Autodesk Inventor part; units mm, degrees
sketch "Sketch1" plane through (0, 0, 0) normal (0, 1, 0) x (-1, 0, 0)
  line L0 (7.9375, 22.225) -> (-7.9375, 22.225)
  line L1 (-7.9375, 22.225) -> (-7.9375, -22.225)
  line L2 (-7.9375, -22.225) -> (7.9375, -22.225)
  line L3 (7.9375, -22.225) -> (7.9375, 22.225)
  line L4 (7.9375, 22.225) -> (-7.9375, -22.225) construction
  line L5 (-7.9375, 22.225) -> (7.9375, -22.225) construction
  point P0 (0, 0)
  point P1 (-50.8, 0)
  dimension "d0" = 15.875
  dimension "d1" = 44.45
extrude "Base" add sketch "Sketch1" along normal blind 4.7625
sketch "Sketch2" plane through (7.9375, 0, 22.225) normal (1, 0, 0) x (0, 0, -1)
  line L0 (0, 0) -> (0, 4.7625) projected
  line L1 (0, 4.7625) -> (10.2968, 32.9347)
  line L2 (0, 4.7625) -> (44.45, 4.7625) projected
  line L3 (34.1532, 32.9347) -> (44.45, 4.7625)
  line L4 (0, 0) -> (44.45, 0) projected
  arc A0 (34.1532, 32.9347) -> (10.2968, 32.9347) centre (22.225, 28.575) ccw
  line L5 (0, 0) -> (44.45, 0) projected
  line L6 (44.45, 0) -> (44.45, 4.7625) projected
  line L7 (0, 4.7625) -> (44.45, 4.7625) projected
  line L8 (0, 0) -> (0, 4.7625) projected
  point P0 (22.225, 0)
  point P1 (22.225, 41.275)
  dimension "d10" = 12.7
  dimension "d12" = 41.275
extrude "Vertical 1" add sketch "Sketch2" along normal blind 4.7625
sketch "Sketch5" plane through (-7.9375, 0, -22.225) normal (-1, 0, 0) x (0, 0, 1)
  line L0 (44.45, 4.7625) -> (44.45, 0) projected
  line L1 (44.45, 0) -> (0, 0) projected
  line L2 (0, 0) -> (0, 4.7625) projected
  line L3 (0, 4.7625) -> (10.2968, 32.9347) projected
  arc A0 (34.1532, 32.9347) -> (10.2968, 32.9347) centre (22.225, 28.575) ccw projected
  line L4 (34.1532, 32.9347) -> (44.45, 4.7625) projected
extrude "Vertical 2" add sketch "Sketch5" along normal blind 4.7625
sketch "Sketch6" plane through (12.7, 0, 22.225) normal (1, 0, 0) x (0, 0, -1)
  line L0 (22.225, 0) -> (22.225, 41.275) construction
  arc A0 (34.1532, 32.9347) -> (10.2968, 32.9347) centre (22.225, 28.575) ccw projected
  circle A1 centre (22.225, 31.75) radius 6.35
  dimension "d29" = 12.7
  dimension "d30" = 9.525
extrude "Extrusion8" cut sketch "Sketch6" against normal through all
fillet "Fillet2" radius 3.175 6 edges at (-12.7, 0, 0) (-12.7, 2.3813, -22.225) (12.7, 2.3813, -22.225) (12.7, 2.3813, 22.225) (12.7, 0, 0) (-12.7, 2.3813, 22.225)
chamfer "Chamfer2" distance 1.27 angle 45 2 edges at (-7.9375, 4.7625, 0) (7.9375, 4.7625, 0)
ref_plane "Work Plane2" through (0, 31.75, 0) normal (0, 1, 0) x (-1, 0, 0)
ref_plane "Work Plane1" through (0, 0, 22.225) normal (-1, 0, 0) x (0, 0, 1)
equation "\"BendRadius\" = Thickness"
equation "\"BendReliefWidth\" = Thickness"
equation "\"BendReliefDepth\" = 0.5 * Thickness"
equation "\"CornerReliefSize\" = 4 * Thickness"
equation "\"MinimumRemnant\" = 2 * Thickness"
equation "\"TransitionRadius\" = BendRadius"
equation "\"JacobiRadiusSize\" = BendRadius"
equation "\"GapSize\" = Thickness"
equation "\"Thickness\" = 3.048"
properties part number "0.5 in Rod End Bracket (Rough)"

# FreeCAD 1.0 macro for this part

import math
import FreeCAD as App
import Part
import Sketcher

V = App.Vector
Q = App.Units.Quantity


def edges_at(feature, points):
    """Names of the edges that pass closest to the given points."""
    edges = feature.Shape.Edges
    near = lambda p: min(range(len(edges)), key=lambda i: edges[i].distToShape(Part.Vertex(*p))[0])
    return sorted({f"Edge{near(p) + 1}" for p in points})

doc = App.newDocument("Part")
body = doc.addObject("PartDesign::Body", "Body")

sketch1 = doc.addObject("Sketcher::SketchObject", "Sketch")
body.addObject(sketch1)
sketch1.AttachmentSupport = (doc.XZ_Plane, [""])
sketch1.MapMode = "FlatFace"
sketch1.addGeometry([
    Part.LineSegment(V(-7.9375, -22.225, 0), V(-7.9375, 22.225, 0)),
    Part.LineSegment(V(-7.9375, 22.225, 0), V(7.9375, 22.225, 0)),
    Part.LineSegment(V(7.9375, 22.225, 0), V(7.9375, -22.225, 0)),
    Part.LineSegment(V(7.9375, -22.225, 0), V(-7.9375, -22.225, 0)),
], False)
sketch1.addConstraint([
    Sketcher.Constraint("Coincident", 0, 2, 1, 1),
    Sketcher.Constraint("Coincident", 1, 2, 2, 1),
    Sketcher.Constraint("Coincident", 2, 2, 3, 1),
    Sketcher.Constraint("Coincident", 3, 2, 0, 1),
    Sketcher.Constraint("Vertical", 0),
    Sketcher.Constraint("Horizontal", 1),
    Sketcher.Constraint("Vertical", 2),
    Sketcher.Constraint("Horizontal", 3),
    Sketcher.Constraint("Symmetric", 0, 2, 2, 2, -1, 1),
    Sketcher.Constraint("DistanceY", 0, 1, 0, 2, Q("1.75 in")),
    Sketcher.Constraint("DistanceX", 1, 1, 1, 2, Q("0.625 in")),
])
pad1 = doc.addObject("PartDesign::Pad", "Pad")
body.addObject(pad1)
pad1.Profile = sketch1
pad1.Length = Q("0.1875 in")
pad1.Reversed = True

sketch2 = doc.addObject("Sketcher::SketchObject", "Sketch001")
body.addObject(sketch2)
sketch2.AttachmentSupport = (doc.YZ_Plane, [""])
sketch2.MapMode = "FlatFace"
sketch2.AttachmentOffset = App.Placement(V(0, 0, 0.3125 * 25.4), App.Rotation())
sketch2.addGeometry([
    Part.LineSegment(V(4.7625, 22.225, 0), V(0, 22.225, 0)),
    Part.LineSegment(V(0, 22.225, 0), V(0, -22.225, 0)),
    Part.LineSegment(V(0, -22.225, 0), V(4.7625, -22.225, 0)),
    Part.LineSegment(V(4.7625, -22.225, 0), V(32.9347, -11.9282, 0)),
    Part.ArcOfCircle(Part.Circle(V(28.575, 0, 0), V(0, 0, 1), 12.699958), math.radians(-69.922884), math.radians(69.922884)),
    Part.LineSegment(V(32.9347, 11.9282, 0), V(4.7625, 22.225, 0)),
], False)
sketch2.addConstraint([
    Sketcher.Constraint("Coincident", 0, 2, 1, 1),
    Sketcher.Constraint("Coincident", 1, 2, 2, 1),
    Sketcher.Constraint("Coincident", 2, 2, 3, 1),
    Sketcher.Constraint("Tangent", 3, 2, 4, 1),
    Sketcher.Constraint("Tangent", 4, 2, 5, 1),
    Sketcher.Constraint("Coincident", 5, 2, 0, 1),
    Sketcher.Constraint("Horizontal", 0),
    Sketcher.Constraint("Vertical", 1),
    Sketcher.Constraint("Horizontal", 2),
    Sketcher.Constraint("Symmetric", 0, 2, 1, 2, -1, 1),
    Sketcher.Constraint("Symmetric", 3, 2, 4, 2, -1),
    Sketcher.Constraint("Radius", 4, Q("0.5 in")),
    Sketcher.Constraint("DistanceY", 1, 2, 1, 1, Q("1.75 in")),
    Sketcher.Constraint("DistanceX", 0, 2, 0, 1, Q("0.1875 in")),
    Sketcher.Constraint("DistanceX", -1, 1, 4, 3, Q("1.125 in")),
])
pad2 = doc.addObject("PartDesign::Pad", "Pad001")
body.addObject(pad2)
pad2.Profile = sketch2
pad2.Length = Q("0.1875 in")

sketch3 = doc.addObject("Sketcher::SketchObject", "Sketch002")
body.addObject(sketch3)
sketch3.AttachmentSupport = (doc.YZ_Plane, [""])
sketch3.MapMode = "FlatFace"
sketch3.AttachmentOffset = App.Placement(V(0, 0, -0.3125 * 25.4), App.Rotation())
sketch3.addGeometry([
    Part.LineSegment(V(0, 22.225, 0), V(4.7625, 22.225, 0)),
    Part.LineSegment(V(4.7625, 22.225, 0), V(32.9347, 11.9282, 0)),
    Part.ArcOfCircle(Part.Circle(V(28.575, 0, 0), V(0, 0, 1), 12.699958), math.radians(-69.922884), math.radians(69.922884)),
    Part.LineSegment(V(32.9347, -11.9282, 0), V(4.7625, -22.225, 0)),
    Part.LineSegment(V(4.7625, -22.225, 0), V(0, -22.225, 0)),
    Part.LineSegment(V(0, -22.225, 0), V(0, 22.225, 0)),
], False)
sketch3.addConstraint([
    Sketcher.Constraint("Coincident", 0, 2, 1, 1),
    Sketcher.Constraint("Tangent", 1, 2, 2, 2),
    Sketcher.Constraint("Tangent", 2, 1, 3, 1),
    Sketcher.Constraint("Coincident", 3, 2, 4, 1),
    Sketcher.Constraint("Coincident", 4, 2, 5, 1),
    Sketcher.Constraint("Coincident", 5, 2, 0, 1),
    Sketcher.Constraint("Horizontal", 0),
    Sketcher.Constraint("Horizontal", 4),
    Sketcher.Constraint("Vertical", 5),
    Sketcher.Constraint("Symmetric", 4, 2, 5, 2, -1, 1),
    Sketcher.Constraint("Symmetric", 1, 2, 2, 1, -1),
    Sketcher.Constraint("Radius", 2, Q("0.5 in")),
    Sketcher.Constraint("DistanceY", 5, 1, 5, 2, Q("1.75 in")),
    Sketcher.Constraint("DistanceX", 0, 1, 0, 2, Q("0.1875 in")),
    Sketcher.Constraint("DistanceX", -1, 1, 2, 3, Q("1.125 in")),
])
pad3 = doc.addObject("PartDesign::Pad", "Pad002")
body.addObject(pad3)
pad3.Profile = sketch3
pad3.Length = Q("0.1875 in")
pad3.Reversed = True

sketch4 = doc.addObject("Sketcher::SketchObject", "Sketch003")
body.addObject(sketch4)
sketch4.AttachmentSupport = (doc.YZ_Plane, [""])
sketch4.MapMode = "FlatFace"
sketch4.AttachmentOffset = App.Placement(V(0, 0, 0.5 * 25.4), App.Rotation())
sketch4.addGeometry(Part.Circle(V(31.75, 0, 0), V(0, 0, 1), 6.35), False)
sketch4.addConstraint([
    Sketcher.Constraint("PointOnObject", 0, 3, -1),
    Sketcher.Constraint("Diameter", 0, Q("0.5 in")),
    Sketcher.Constraint("DistanceX", -1, 1, 0, 3, Q("1.25 in")),
])
pocket1 = doc.addObject("PartDesign::Pocket", "Pocket")
body.addObject(pocket1)
pocket1.Profile = sketch4
pocket1.Type = "ThroughAll"
doc.recompute()

fillet = doc.addObject("PartDesign::Fillet", "Fillet")
body.addObject(fillet)
fillet.Base = (pocket1, edges_at(pocket1, [
    (-12.7, 0, 0),
    (-12.7, 2.381, -22.225),
    (12.7, 2.381, -22.225),
    (12.7, 2.381, 22.225),
    (12.7, 0, 0),
    (-12.7, 2.381, 22.225),
]))
fillet.Radius = Q("0.125 in")
doc.recompute()

chamfer = doc.addObject("PartDesign::Chamfer", "Chamfer")
body.addObject(chamfer)
chamfer.Base = (fillet, edges_at(fillet, [(-7.938, 4.763, 0), (7.938, 4.763, 0)]))
chamfer.Size = Q("0.05 in")

doc.recompute()
